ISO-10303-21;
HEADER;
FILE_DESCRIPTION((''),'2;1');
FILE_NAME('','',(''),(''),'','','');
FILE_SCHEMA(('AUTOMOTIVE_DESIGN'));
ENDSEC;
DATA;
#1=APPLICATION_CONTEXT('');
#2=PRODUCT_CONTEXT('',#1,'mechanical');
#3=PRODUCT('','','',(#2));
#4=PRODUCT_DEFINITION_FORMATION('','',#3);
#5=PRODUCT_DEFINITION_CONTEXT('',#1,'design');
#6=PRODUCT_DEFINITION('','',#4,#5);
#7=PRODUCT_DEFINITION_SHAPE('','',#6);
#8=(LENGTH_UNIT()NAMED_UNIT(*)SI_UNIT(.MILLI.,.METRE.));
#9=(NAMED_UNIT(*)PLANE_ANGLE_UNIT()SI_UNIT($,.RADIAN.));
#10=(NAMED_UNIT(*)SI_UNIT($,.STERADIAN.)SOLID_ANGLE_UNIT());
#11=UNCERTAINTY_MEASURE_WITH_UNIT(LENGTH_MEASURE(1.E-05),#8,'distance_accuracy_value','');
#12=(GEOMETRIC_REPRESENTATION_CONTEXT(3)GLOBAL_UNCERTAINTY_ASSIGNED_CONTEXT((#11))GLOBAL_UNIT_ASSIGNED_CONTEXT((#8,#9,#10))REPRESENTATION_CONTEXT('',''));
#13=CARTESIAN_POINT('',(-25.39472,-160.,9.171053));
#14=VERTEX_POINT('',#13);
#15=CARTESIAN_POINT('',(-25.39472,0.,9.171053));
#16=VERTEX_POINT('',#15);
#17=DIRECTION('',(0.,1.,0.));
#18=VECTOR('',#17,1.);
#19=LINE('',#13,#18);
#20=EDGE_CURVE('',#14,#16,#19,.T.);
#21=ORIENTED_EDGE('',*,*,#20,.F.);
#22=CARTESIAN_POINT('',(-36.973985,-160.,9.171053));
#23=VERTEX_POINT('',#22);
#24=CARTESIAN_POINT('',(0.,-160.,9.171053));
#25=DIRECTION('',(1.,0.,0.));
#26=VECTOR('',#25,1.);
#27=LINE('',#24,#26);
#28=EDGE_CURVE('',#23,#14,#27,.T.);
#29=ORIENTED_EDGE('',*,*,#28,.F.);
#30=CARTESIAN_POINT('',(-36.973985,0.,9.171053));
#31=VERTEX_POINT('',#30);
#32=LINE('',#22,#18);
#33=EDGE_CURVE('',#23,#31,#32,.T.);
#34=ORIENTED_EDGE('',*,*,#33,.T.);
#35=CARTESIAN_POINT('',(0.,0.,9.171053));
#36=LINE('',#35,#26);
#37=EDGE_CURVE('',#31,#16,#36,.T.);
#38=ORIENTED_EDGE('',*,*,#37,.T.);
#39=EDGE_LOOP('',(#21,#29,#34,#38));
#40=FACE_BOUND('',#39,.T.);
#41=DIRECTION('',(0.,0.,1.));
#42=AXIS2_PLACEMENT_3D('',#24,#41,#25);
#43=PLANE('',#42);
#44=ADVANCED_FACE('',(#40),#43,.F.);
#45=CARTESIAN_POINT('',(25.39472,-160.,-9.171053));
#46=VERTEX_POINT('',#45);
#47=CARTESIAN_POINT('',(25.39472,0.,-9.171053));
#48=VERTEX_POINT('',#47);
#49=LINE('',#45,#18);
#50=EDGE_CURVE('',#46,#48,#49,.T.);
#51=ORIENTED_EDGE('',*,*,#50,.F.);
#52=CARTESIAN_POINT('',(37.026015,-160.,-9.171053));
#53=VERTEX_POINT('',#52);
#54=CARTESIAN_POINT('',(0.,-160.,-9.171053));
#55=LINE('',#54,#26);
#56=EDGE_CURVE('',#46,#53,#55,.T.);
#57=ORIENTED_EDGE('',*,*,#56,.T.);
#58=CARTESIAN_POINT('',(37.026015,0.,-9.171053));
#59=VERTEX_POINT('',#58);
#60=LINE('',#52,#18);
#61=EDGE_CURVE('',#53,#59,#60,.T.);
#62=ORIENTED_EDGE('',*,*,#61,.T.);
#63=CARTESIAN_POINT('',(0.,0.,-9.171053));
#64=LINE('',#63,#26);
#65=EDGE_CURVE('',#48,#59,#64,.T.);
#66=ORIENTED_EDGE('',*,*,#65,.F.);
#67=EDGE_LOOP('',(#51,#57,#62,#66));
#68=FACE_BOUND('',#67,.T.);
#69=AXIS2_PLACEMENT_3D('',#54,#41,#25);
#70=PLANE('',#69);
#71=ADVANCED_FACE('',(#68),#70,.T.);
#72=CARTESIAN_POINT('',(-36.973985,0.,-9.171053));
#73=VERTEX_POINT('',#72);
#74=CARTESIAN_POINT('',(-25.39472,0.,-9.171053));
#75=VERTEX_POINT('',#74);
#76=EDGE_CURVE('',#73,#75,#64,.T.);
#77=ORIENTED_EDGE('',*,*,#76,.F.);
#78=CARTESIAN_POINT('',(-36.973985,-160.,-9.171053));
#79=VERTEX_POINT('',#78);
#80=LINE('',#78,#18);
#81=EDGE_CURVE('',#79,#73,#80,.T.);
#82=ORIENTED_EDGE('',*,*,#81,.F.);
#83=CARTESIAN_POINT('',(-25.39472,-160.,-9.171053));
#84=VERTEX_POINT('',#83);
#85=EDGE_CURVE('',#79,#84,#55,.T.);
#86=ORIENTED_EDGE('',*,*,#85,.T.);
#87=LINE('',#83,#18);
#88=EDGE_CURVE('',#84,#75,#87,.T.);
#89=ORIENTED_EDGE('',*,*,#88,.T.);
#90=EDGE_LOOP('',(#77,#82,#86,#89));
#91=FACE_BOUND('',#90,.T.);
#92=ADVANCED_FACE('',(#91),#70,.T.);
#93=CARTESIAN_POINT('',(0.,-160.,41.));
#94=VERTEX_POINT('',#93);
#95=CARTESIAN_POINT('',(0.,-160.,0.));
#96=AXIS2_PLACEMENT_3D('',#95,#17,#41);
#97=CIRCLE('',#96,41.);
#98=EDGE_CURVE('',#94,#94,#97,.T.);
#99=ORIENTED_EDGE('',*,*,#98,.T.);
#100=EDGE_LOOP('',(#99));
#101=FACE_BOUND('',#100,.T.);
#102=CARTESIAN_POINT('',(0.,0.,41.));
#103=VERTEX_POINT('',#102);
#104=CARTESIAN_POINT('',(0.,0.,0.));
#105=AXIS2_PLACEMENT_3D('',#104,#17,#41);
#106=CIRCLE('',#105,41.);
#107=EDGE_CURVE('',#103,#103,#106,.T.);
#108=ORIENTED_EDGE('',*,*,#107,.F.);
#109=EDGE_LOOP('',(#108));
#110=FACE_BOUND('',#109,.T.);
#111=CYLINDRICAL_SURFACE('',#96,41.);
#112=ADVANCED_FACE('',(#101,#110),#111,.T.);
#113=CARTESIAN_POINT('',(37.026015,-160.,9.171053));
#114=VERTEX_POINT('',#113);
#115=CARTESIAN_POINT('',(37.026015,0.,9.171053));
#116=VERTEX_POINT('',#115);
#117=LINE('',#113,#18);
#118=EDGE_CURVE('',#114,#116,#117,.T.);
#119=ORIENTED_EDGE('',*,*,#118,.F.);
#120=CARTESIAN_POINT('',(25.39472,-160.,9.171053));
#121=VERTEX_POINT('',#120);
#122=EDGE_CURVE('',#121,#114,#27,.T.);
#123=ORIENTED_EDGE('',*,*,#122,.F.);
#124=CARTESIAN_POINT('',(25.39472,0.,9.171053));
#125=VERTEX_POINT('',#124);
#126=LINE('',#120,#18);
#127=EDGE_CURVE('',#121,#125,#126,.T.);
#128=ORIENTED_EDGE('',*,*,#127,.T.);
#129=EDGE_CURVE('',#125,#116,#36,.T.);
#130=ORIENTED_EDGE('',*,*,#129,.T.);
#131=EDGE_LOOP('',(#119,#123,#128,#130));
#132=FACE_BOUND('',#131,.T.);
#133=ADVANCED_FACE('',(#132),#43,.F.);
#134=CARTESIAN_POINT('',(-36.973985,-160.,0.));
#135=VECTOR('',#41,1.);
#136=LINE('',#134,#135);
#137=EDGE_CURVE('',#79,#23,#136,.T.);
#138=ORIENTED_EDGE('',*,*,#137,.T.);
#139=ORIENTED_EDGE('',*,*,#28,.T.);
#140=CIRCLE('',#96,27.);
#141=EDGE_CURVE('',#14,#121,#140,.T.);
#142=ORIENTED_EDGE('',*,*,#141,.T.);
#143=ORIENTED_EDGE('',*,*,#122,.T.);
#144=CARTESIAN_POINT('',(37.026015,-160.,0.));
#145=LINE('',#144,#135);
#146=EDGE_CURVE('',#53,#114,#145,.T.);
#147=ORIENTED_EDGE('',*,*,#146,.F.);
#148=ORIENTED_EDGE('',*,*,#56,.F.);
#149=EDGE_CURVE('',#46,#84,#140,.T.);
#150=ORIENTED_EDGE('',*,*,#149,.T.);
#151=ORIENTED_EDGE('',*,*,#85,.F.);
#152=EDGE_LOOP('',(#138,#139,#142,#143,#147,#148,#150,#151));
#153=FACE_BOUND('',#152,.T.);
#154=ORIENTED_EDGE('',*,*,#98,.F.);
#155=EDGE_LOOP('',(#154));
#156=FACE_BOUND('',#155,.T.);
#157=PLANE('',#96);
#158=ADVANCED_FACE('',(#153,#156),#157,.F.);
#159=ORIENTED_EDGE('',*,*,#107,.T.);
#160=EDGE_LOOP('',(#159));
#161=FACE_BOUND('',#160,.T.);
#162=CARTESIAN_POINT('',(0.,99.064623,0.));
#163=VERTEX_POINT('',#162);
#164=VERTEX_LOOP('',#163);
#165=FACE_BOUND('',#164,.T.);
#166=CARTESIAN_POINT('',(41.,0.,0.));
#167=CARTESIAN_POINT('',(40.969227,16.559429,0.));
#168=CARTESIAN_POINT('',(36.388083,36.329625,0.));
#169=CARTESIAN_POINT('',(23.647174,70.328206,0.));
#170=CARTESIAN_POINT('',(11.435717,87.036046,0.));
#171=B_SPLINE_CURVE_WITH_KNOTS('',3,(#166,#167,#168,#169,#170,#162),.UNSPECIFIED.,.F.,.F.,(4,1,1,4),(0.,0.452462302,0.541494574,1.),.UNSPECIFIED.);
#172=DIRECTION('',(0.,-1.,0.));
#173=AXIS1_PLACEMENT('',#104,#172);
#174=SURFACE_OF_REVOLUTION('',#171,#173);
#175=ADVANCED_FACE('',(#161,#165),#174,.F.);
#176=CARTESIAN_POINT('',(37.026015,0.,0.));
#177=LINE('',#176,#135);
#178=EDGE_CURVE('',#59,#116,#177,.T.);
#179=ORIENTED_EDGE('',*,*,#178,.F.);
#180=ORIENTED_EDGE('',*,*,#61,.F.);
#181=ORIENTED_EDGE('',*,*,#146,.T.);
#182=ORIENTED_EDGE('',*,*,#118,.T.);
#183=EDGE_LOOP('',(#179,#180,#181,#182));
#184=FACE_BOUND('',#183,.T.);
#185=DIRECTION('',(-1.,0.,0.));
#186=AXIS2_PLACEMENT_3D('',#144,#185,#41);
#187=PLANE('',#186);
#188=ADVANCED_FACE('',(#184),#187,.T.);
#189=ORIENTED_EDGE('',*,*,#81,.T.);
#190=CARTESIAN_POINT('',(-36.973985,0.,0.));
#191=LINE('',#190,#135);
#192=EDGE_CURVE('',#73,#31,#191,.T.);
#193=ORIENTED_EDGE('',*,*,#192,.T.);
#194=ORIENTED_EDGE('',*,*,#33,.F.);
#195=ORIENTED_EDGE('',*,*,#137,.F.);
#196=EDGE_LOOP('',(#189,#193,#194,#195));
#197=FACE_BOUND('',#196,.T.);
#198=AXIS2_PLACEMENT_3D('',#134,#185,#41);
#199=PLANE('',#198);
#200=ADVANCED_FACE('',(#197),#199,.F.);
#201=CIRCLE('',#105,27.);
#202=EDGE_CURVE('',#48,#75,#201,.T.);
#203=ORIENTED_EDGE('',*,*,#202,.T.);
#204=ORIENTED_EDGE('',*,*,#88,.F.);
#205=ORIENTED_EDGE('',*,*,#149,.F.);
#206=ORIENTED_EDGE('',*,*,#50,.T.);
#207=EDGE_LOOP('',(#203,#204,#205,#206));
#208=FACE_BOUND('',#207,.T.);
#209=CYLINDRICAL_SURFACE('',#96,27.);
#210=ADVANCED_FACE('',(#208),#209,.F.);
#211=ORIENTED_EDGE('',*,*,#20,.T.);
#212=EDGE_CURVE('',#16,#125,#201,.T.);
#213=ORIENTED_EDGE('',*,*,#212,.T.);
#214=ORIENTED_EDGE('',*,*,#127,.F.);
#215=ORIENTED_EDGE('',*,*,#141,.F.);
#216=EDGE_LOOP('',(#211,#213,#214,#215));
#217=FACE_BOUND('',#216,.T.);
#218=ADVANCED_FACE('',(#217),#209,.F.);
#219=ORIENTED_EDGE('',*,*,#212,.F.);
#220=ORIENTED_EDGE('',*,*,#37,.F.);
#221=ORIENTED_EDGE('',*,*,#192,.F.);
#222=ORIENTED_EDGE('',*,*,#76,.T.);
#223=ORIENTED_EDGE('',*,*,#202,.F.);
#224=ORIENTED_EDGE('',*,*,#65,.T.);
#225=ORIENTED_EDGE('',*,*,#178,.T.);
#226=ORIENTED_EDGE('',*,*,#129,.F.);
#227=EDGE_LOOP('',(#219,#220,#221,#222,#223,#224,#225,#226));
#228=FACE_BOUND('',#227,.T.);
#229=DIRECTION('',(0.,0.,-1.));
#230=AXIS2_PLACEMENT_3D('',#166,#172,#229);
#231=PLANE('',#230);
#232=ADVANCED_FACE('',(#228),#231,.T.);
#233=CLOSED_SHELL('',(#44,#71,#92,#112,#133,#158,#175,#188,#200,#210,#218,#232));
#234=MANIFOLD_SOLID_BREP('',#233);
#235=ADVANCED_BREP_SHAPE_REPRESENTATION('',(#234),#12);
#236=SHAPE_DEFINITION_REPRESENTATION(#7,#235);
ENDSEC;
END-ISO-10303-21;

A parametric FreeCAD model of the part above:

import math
import FreeCAD as App
import Part
import Sketcher
Q = App.Units.Quantity

doc = App.newDocument("Part")
params = doc.addObject("Spreadsheet::Sheet", "Params")
for row, (alias, value) in enumerate([
    ("sketch1_radius", "41 mm"),
    ("sketch1_radius2", "27 mm"),
    ("pad1_length", "160 mm"),
    ("revolution_angle", "360 deg"),
], start=1):
    params.set(f"A{row}", alias)
    params.set(f"B{row}", "=" + value)
    params.setAlias(f"B{row}", alias)

body = doc.addObject("PartDesign::Body", "Body")

# Sketch on XZ plane
sketch1 = body.newObject("Sketcher::SketchObject", "Sketch")
sketch1.AttachmentSupport = (doc.getObject("XZ_Plane"), [""])
sketch1.MapMode = "FlatFace"
sketch1.addGeometry([
    Part.ArcOfCircle(Part.Circle(App.Vector(0, 0, 0), App.Vector(0, 0, 1), 41), math.radians(167.07), math.radians(180)),  # 0
    Part.ArcOfCircle(Part.Circle(App.Vector(0, 0, 0), App.Vector(0, 0, 1), 41), math.radians(154.4), math.radians(167.07)),  # 1
    Part.ArcOfCircle(Part.Circle(App.Vector(0, 0, 0), App.Vector(0, 0, 1), 41), math.radians(13), math.radians(154)),  # 2
    Part.ArcOfCircle(Part.Circle(App.Vector(0, 0, 0), App.Vector(0, 0, 1), 41), math.radians(0), math.radians(12.93)),  # 3
    Part.ArcOfCircle(Part.Circle(App.Vector(0, 0, 0), App.Vector(0, 0, 1), 41), math.radians(-12.93), math.radians(0)),  # 4
    Part.ArcOfCircle(Part.Circle(App.Vector(0, 0, 0), App.Vector(0, 0, 1), 41), math.radians(-167), math.radians(-13)),  # 5
    Part.ArcOfCircle(Part.Circle(App.Vector(0, 0, 0), App.Vector(0, 0, 1), 41), math.radians(180), math.radians(192.93)),  # 6
    Part.LineSegment(App.Vector(-25, 9, 0), App.Vector(-37, 9, 0)),  # 7
    Part.LineSegment(App.Vector(-37, 9, 0), App.Vector(-37, -9, 0)),  # 8
    Part.LineSegment(App.Vector(-37, -9, 0), App.Vector(-25, -9, 0)),  # 9
    Part.ArcOfCircle(Part.Circle(App.Vector(0, 0, 0), App.Vector(0, 0, 1), 27), math.radians(-160), math.radians(-20)),  # 10
    Part.LineSegment(App.Vector(25, -9, 0), App.Vector(37, -9, 0)),  # 11
    Part.LineSegment(App.Vector(37, -9, 0), App.Vector(37, 9, 0)),  # 12
    Part.LineSegment(App.Vector(37, 9, 0), App.Vector(25, 9, 0)),  # 13
    Part.ArcOfCircle(Part.Circle(App.Vector(0, 0, 0), App.Vector(0, 0, 1), 27), math.radians(20), math.radians(160)),  # 14
], False)
sketch1.addConstraint([
    Sketcher.Constraint("Tangent", 0, 1, 1, 2),
    Sketcher.Constraint("Tangent", 1, 1, 2, 2),
    Sketcher.Constraint("Tangent", 2, 1, 3, 2),
    Sketcher.Constraint("Tangent", 3, 1, 4, 2),
    Sketcher.Constraint("Tangent", 4, 1, 5, 2),
    Sketcher.Constraint("Tangent", 5, 1, 6, 2),
    Sketcher.Constraint("Tangent", 6, 1, 0, 2),
    Sketcher.Constraint("Coincident", 7, 2, 8, 1),
    Sketcher.Constraint("Coincident", 8, 2, 9, 1),
    Sketcher.Constraint("Coincident", 9, 2, 10, 1),
    Sketcher.Constraint("Coincident", 10, 2, 11, 1),
    Sketcher.Constraint("Coincident", 11, 2, 12, 1),
    Sketcher.Constraint("Coincident", 12, 2, 13, 1),
    Sketcher.Constraint("Coincident", 13, 2, 14, 1),
    Sketcher.Constraint("Coincident", 14, 2, 7, 1),
    Sketcher.Constraint("Horizontal", 7),
    Sketcher.Constraint("Vertical", 8),
    Sketcher.Constraint("Horizontal", 9),
    Sketcher.Constraint("Horizontal", 11),
    Sketcher.Constraint("Vertical", 12),
    Sketcher.Constraint("Horizontal", 13),
    Sketcher.Constraint("Coincident", 0, 3, -1, 1),
    Sketcher.Constraint("Coincident", 2, 3, -1, 1),
    Sketcher.Constraint("Coincident", 4, 3, -1, 1),
    Sketcher.Constraint("Coincident", 10, 3, -1, 1),
    Sketcher.Constraint("Coincident", 14, 3, -1, 1),
    Sketcher.Constraint("Equal", 10, 14),
    Sketcher.Constraint("PointOnObject", 3, 1, -1),
    Sketcher.Constraint("PointOnObject", 6, 1, -1),
    Sketcher.Constraint("Horizontal", 0, 1, 2, 1),
    Sketcher.Constraint("Horizontal", 4, 1, 5, 1),
    Sketcher.Constraint("Horizontal", 2, 1, 7, 2),
    Sketcher.Constraint("Horizontal", 5, 1, 8, 2),
    Sketcher.Constraint("Horizontal", 9, 2, 10, 2),
    Sketcher.Constraint("Horizontal", 7, 2, 12, 2),
    Sketcher.Constraint("Vertical", 2, 1, 4, 1),
    Sketcher.Constraint("Vertical", 1, 1, 7, 2),
    Sketcher.Constraint("Radius", 0, Q("41 mm")),
    Sketcher.Constraint("Radius", 10, Q("27 mm")),
    Sketcher.Constraint("DistanceX", 7, 2, 7, 1, Q("11.579265 mm")),
    Sketcher.Constraint("DistanceX", 11, 1, 11, 2, Q("11.631295 mm")),
    Sketcher.Constraint("DistanceY", 8, 2, 8, 1, Q("18.342105 mm")),
])
sketch1.setExpression("Constraints[37]", "Params.sketch1_radius")
sketch1.setExpression("Constraints[38]", "Params.sketch1_radius2")
pad1 = body.newObject("PartDesign::Pad", "Pad")
pad1.Profile = sketch1
pad1.setExpression("Length", "Params.pad1_length")

# Sketch on XY plane
sketch2 = body.newObject("Sketcher::SketchObject", "Sketch001")
sketch2.AttachmentSupport = (doc.getObject("XY_Plane"), [""])
sketch2.MapMode = "FlatFace"
sketch2.addGeometry([
    Part.LineSegment(App.Vector(0, 99.064623, 0), App.Vector(0, 0, 0)),
    Part.LineSegment(App.Vector(0, 0, 0), App.Vector(41, 0, 0)),
    Part.BSplineCurve([App.Vector(0, 99.064623, 0), App.Vector(11.435717, 87.036046, 0), App.Vector(23.647174, 70.328206, 0), App.Vector(36.388083, 36.329625, 0), App.Vector(40.969227, 16.559429, 0), App.Vector(41, 0, 0)], [4, 1, 1, 4], [0, 0.458505426, 0.547537698, 1], False, 3, [1, 1, 1, 1, 1, 1], False),
], False)
sketch2.addConstraint([
    Sketcher.Constraint("Block", 2),
    Sketcher.Constraint("Coincident", 0, 2, 1, 1),
    Sketcher.Constraint("Coincident", 1, 2, 2, 2),
    Sketcher.Constraint("Coincident", 2, 1, 0, 1),
    Sketcher.Constraint("Vertical", 0),
    Sketcher.Constraint("Horizontal", 1),
])
revolution = body.newObject("PartDesign::Revolution", "Revolution")
revolution.Profile = sketch2
revolution.ReferenceAxis = (sketch2, ["V_Axis"])
revolution.setExpression("Angle", "Params.revolution_angle")

doc.recompute()
